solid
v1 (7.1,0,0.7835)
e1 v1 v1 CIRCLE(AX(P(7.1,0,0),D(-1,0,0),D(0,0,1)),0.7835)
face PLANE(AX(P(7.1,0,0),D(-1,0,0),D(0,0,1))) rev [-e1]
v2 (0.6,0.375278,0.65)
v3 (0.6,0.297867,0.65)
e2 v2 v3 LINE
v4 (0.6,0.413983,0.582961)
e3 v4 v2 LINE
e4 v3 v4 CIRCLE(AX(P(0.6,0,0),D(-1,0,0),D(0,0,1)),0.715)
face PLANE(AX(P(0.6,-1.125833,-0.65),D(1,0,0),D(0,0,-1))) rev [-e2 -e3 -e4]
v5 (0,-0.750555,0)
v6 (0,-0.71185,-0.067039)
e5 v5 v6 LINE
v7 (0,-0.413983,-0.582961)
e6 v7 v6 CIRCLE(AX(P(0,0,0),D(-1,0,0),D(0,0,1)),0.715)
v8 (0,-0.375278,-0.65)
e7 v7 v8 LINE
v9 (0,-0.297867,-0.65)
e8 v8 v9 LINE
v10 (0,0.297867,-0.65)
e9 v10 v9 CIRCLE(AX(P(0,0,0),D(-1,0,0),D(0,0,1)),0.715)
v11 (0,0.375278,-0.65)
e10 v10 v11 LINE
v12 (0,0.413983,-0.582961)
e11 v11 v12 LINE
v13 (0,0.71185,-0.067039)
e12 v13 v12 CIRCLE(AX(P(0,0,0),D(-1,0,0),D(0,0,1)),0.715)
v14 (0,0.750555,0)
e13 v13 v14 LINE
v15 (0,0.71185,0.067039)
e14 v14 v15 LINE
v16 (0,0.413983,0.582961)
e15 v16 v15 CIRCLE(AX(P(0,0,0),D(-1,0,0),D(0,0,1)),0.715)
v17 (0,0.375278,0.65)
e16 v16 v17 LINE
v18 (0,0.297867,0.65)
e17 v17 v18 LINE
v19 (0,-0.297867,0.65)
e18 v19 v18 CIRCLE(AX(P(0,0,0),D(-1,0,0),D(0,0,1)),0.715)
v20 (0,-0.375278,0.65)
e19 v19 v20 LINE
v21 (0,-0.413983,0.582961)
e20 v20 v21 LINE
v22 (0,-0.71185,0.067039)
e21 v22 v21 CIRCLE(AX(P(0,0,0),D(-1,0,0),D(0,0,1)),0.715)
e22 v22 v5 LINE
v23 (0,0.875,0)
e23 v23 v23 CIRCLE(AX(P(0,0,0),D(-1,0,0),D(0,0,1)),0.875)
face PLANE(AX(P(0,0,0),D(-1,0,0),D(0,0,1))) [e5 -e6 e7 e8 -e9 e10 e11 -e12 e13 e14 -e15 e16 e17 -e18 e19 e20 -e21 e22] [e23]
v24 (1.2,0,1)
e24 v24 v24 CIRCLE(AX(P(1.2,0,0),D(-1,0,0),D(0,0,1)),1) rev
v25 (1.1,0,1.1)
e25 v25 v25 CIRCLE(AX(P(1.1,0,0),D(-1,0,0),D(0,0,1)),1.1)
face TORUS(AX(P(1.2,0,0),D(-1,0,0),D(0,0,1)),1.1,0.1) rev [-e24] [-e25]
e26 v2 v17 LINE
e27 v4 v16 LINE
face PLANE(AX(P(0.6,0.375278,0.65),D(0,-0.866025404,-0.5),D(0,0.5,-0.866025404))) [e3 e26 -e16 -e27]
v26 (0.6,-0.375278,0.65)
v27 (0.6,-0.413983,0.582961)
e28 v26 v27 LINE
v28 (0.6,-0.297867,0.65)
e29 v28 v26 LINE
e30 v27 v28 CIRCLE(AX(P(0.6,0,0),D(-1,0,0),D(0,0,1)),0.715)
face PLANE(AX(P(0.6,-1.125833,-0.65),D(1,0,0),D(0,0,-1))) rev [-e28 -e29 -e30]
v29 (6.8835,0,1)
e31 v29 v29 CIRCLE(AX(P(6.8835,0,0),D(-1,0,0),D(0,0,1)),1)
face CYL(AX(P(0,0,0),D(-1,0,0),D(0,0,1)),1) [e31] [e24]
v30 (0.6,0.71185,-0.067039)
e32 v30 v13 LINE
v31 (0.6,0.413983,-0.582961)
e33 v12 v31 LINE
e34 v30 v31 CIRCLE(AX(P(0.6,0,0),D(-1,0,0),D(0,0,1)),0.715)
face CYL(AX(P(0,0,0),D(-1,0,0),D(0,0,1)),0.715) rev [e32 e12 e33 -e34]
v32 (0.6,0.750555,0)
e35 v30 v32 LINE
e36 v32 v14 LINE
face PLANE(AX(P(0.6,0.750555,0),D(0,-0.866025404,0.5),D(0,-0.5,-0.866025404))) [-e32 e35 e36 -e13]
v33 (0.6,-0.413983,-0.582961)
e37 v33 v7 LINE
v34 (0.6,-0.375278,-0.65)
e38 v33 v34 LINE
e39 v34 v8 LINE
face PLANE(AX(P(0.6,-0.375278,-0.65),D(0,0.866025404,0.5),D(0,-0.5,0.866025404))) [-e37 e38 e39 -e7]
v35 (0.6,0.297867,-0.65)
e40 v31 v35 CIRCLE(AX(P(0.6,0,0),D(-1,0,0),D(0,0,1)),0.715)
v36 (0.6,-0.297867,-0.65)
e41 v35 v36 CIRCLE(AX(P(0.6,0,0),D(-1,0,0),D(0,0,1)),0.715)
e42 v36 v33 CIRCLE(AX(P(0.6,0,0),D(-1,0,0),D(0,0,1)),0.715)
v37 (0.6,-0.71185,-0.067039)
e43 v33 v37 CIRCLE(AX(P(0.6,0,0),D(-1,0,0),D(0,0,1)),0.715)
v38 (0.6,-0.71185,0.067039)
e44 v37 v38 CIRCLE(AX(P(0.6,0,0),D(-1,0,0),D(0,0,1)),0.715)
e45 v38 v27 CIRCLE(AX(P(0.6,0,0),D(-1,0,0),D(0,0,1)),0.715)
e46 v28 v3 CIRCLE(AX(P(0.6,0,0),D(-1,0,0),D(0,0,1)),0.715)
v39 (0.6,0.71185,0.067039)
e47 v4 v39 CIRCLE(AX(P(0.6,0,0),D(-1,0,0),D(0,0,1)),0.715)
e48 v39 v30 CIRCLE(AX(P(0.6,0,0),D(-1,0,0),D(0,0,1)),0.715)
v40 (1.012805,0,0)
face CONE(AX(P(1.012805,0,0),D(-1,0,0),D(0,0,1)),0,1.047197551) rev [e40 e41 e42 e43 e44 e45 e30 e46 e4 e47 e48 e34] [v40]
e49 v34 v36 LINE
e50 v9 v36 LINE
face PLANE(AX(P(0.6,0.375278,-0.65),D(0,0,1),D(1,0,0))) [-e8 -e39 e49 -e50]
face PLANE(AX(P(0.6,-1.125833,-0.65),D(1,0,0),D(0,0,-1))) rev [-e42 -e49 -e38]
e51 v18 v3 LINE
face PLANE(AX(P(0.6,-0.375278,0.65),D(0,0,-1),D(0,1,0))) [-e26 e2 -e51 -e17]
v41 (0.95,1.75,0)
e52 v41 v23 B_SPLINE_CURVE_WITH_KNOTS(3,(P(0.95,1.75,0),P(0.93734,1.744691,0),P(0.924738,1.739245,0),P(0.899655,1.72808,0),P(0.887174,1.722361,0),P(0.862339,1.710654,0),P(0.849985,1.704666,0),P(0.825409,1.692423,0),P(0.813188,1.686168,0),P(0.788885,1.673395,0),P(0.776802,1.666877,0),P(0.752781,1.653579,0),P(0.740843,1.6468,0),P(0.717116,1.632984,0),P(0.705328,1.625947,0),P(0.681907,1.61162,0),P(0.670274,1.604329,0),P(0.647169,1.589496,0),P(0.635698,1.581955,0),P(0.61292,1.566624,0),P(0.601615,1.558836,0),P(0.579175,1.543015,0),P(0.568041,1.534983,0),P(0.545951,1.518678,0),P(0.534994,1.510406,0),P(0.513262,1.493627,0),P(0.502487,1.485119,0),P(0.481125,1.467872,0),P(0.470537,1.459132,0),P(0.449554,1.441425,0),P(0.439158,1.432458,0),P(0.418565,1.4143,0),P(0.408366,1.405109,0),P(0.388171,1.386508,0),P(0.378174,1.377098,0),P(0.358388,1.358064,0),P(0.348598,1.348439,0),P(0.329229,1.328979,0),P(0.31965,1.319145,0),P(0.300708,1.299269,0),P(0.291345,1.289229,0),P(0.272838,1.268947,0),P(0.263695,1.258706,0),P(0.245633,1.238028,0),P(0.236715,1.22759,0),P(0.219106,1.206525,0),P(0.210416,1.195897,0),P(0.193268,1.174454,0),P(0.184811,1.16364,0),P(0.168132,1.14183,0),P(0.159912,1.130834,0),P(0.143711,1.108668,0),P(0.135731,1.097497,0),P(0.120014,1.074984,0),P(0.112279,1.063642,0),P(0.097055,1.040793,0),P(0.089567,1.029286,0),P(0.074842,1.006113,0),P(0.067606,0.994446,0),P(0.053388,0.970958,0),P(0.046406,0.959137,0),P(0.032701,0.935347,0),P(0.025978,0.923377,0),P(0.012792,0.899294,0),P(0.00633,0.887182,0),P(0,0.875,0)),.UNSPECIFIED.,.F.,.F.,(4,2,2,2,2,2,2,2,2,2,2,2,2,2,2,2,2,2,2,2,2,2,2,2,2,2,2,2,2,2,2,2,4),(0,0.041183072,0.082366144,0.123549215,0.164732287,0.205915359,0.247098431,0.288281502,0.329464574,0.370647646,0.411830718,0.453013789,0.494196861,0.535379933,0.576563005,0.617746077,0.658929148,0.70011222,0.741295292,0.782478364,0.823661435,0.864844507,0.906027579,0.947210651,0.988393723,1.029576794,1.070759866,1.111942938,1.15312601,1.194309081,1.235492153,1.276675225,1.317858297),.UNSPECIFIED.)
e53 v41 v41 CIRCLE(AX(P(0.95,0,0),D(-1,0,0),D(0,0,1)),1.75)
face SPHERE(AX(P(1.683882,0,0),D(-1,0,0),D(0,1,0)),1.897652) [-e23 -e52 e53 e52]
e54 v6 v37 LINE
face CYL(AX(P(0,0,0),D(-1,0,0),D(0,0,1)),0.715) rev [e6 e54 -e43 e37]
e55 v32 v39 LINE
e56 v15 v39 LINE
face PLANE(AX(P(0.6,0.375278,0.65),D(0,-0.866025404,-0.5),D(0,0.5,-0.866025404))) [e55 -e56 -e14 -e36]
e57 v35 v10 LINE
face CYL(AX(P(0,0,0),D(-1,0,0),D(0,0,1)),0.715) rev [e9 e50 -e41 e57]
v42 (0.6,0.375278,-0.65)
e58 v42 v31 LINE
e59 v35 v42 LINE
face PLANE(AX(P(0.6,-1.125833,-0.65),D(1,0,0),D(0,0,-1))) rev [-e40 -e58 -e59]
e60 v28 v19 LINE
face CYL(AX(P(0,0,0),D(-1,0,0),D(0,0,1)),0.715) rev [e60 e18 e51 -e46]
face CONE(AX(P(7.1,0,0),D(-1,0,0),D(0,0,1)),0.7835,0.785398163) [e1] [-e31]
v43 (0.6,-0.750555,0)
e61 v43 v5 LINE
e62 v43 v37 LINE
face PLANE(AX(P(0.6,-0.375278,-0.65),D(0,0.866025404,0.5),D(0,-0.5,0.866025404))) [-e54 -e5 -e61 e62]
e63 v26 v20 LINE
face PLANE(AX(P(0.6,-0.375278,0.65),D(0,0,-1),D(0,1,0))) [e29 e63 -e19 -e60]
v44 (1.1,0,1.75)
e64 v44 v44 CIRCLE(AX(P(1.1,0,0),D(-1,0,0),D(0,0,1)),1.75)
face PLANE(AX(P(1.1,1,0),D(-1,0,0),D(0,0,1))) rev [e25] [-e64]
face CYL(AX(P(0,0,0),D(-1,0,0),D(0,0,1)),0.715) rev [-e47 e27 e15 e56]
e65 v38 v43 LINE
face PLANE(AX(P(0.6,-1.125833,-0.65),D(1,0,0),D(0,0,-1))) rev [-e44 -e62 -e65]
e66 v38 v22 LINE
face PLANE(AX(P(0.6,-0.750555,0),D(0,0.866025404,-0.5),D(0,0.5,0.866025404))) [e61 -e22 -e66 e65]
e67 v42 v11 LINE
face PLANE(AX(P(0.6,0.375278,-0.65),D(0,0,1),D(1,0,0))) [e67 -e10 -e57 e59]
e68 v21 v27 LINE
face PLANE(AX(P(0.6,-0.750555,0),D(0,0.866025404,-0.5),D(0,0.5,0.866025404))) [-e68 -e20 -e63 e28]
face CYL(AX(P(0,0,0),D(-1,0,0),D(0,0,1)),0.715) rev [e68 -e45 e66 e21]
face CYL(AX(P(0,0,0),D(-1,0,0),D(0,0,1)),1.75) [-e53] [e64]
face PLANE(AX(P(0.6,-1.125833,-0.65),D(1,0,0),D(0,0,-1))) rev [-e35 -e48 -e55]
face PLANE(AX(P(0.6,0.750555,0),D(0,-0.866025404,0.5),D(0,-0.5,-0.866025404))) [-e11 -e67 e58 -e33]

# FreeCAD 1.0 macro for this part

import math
import FreeCAD as App
import Part
import Sketcher
from FreeCAD import Vector
Q = App.Units.Quantity


def edges_at(feature, points):
    """Names of the edges that pass closest to the given points."""
    edges = feature.Shape.Edges
    near = lambda p: min(range(len(edges)), key=lambda i: edges[i].distToShape(Part.Vertex(*p))[0])
    return sorted({f"Edge{near(p) + 1}" for p in points})


def add_polygon(sketch, points):
    """Adds a closed chain of lines whose ends are joined by coincident constraints."""
    first, n = sketch.GeometryCount, len(points)
    for a, b in zip(points, points[1:] + points[:1]):
        sketch.addGeometry(Part.LineSegment(App.Vector(*a, 0), App.Vector(*b, 0)), False)
    for i in range(n):
        sketch.addConstraint(Sketcher.Constraint("Coincident", first + i, 2, first + (i + 1) % n, 1))

doc = App.newDocument("Part")
body = doc.addObject("PartDesign::Body", "Body")

# Sketch on XY plane
sketch1 = doc.addObject("Sketcher::SketchObject", "Sketch")
body.addObject(sketch1)
sketch1.AttachmentSupport = (doc.XY_Plane, [""])
sketch1.MapMode = "FlatFace"
sketch1.addGeometry([
    Part.LineSegment(Vector(7.1, 0, 0), Vector(7.1, 0.7835, 0)),  # 0
    Part.LineSegment(Vector(7.1, 0.7835, 0), Vector(6.8835, 1, 0)),  # 1
    Part.LineSegment(Vector(6.8835, 1, 0), Vector(1.1, 1, 0)),  # 2
    Part.LineSegment(Vector(1.1, 1, 0), Vector(1.1, 1.75, 0)),  # 3
    Part.LineSegment(Vector(1.1, 1.75, 0), Vector(0.95, 1.75, 0)),  # 4
    Part.ArcOfCircle(Part.Circle(Vector(1.683882, 0, 0), Vector(0, 0, 1), 1.897652), math.radians(112.751272), math.radians(152.542134)),  # 5
    Part.LineSegment(Vector(0, 0.875, 0), Vector(0, 0, 0)),  # 6
    Part.LineSegment(Vector(0, 0, 0), Vector(7.1, 0, 0)),  # 7
], False)
sketch1.addConstraint([
    Sketcher.Constraint("Coincident", 0, 2, 1, 1),
    Sketcher.Constraint("Coincident", 1, 2, 2, 1),
    Sketcher.Constraint("Coincident", 2, 2, 3, 1),
    Sketcher.Constraint("Coincident", 3, 2, 4, 1),
    Sketcher.Constraint("Coincident", 4, 2, 5, 1),
    Sketcher.Constraint("Coincident", 5, 2, 6, 1),
    Sketcher.Constraint("Coincident", 6, 2, 7, 1),
    Sketcher.Constraint("Coincident", 7, 2, 0, 1),
    Sketcher.Constraint("Vertical", 0),
    Sketcher.Constraint("Horizontal", 2),
    Sketcher.Constraint("Vertical", 3),
    Sketcher.Constraint("Horizontal", 4),
    Sketcher.Constraint("Vertical", 6),
    Sketcher.Constraint("Horizontal", 7),
    Sketcher.Constraint("Coincident", 6, 2, -1, 1),
    Sketcher.Constraint("PointOnObject", 5, 3, -1),
    Sketcher.Constraint("Angle", 1, Q("135 deg")),
    Sketcher.Constraint("DistanceX", 7, 1, 7, 2, Q("7.1 mm")),
    Sketcher.Constraint("DistanceY", -1, 1, 1, 2, Q("1 mm")),
    Sketcher.Constraint("DistanceX", 2, 2, 0, 2, Q("6 mm")),
    Sketcher.Constraint("DistanceX", 4, 2, 4, 1, Q("0.15 mm")),
    Sketcher.Constraint("DistanceY", 3, 1, 3, 2, Q("0.75 mm")),
    Sketcher.Constraint("DistanceY", 6, 2, 6, 1, Q("0.875 mm")),
    Sketcher.Constraint("DistanceX", 2, 2, 2, 1, Q("5.7835 mm")),
])
revolution = doc.addObject("PartDesign::Revolution", "Revolution")
body.addObject(revolution)
revolution.Profile = sketch1
revolution.ReferenceAxis = (sketch1, ["H_Axis"])
revolution.Angle = 360
doc.recompute()

fillet = doc.addObject("PartDesign::Fillet", "Fillet")
body.addObject(fillet)
fillet.Base = (revolution, edges_at(revolution, [(1.1, 0, -1)]))
fillet.Radius = 0.1

# Sketch on XY plane
sketch2 = doc.addObject("Sketcher::SketchObject", "Sketch001")
body.addObject(sketch2)
sketch2.AttachmentSupport = (doc.XY_Plane, [""])
sketch2.MapMode = "FlatFace"
add_polygon(sketch2, [(0.6, 0.715), (0, 0.715), (0, 0), (1.012805, 0)])  # lines 0-3
sketch2.addConstraint([
    Sketcher.Constraint("Horizontal", 0),
    Sketcher.Constraint("Vertical", 1),
    Sketcher.Constraint("Horizontal", 2),
    Sketcher.Constraint("Coincident", 1, 2, -1, 1),
    Sketcher.Constraint("Angle", 3, Q("120 deg")),
    Sketcher.Constraint("DistanceX", 0, 2, 0, 1, Q("0.6 mm")),
    Sketcher.Constraint("DistanceY", 1, 2, 1, 1, Q("0.715 mm")),
])
groove = doc.addObject("PartDesign::Groove", "Groove")
body.addObject(groove)
groove.Profile = sketch2
groove.ReferenceAxis = (sketch2, ["H_Axis"])
groove.Angle = 360

# Sketch on YZ plane
sketch3 = doc.addObject("Sketcher::SketchObject", "Sketch002")
body.addObject(sketch3)
sketch3.AttachmentSupport = (doc.YZ_Plane, [""])
sketch3.MapMode = "FlatFace"
add_polygon(sketch3, [(0.375278, 0.65), (-0.375278, 0.65), (-0.750555, 0), (-0.375278, -0.65), (0.375278, -0.65), (0.750555, 0)])  # lines 0-5
sketch3.addConstraint([
    Sketcher.Constraint("Horizontal", 0),
    Sketcher.Constraint("Horizontal", 3),
    Sketcher.Constraint("Symmetric", 0, 2, 3, 2, -1, 1),
    Sketcher.Constraint("Symmetric", 1, 2, 4, 2, -1, 1),
    Sketcher.Constraint("PointOnObject", 1, 2, -1),
    Sketcher.Constraint("Parallel", 2, 5),
    Sketcher.Constraint("Vertical", 0, 2, 2, 2),
    Sketcher.Constraint("Angle", 1, Q("-120 deg")),
    Sketcher.Constraint("DistanceY", 2, 2, 0, 2, Q("1.3 mm")),
    Sketcher.Constraint("DistanceX", 0, 2, 0, 1, Q("0.750555 mm")),
])
pocket1 = doc.addObject("PartDesign::Pocket", "Pocket")
body.addObject(pocket1)
pocket1.Profile = sketch3
pocket1.Length = 0.6
pocket1.Reversed = True

doc.recompute()
